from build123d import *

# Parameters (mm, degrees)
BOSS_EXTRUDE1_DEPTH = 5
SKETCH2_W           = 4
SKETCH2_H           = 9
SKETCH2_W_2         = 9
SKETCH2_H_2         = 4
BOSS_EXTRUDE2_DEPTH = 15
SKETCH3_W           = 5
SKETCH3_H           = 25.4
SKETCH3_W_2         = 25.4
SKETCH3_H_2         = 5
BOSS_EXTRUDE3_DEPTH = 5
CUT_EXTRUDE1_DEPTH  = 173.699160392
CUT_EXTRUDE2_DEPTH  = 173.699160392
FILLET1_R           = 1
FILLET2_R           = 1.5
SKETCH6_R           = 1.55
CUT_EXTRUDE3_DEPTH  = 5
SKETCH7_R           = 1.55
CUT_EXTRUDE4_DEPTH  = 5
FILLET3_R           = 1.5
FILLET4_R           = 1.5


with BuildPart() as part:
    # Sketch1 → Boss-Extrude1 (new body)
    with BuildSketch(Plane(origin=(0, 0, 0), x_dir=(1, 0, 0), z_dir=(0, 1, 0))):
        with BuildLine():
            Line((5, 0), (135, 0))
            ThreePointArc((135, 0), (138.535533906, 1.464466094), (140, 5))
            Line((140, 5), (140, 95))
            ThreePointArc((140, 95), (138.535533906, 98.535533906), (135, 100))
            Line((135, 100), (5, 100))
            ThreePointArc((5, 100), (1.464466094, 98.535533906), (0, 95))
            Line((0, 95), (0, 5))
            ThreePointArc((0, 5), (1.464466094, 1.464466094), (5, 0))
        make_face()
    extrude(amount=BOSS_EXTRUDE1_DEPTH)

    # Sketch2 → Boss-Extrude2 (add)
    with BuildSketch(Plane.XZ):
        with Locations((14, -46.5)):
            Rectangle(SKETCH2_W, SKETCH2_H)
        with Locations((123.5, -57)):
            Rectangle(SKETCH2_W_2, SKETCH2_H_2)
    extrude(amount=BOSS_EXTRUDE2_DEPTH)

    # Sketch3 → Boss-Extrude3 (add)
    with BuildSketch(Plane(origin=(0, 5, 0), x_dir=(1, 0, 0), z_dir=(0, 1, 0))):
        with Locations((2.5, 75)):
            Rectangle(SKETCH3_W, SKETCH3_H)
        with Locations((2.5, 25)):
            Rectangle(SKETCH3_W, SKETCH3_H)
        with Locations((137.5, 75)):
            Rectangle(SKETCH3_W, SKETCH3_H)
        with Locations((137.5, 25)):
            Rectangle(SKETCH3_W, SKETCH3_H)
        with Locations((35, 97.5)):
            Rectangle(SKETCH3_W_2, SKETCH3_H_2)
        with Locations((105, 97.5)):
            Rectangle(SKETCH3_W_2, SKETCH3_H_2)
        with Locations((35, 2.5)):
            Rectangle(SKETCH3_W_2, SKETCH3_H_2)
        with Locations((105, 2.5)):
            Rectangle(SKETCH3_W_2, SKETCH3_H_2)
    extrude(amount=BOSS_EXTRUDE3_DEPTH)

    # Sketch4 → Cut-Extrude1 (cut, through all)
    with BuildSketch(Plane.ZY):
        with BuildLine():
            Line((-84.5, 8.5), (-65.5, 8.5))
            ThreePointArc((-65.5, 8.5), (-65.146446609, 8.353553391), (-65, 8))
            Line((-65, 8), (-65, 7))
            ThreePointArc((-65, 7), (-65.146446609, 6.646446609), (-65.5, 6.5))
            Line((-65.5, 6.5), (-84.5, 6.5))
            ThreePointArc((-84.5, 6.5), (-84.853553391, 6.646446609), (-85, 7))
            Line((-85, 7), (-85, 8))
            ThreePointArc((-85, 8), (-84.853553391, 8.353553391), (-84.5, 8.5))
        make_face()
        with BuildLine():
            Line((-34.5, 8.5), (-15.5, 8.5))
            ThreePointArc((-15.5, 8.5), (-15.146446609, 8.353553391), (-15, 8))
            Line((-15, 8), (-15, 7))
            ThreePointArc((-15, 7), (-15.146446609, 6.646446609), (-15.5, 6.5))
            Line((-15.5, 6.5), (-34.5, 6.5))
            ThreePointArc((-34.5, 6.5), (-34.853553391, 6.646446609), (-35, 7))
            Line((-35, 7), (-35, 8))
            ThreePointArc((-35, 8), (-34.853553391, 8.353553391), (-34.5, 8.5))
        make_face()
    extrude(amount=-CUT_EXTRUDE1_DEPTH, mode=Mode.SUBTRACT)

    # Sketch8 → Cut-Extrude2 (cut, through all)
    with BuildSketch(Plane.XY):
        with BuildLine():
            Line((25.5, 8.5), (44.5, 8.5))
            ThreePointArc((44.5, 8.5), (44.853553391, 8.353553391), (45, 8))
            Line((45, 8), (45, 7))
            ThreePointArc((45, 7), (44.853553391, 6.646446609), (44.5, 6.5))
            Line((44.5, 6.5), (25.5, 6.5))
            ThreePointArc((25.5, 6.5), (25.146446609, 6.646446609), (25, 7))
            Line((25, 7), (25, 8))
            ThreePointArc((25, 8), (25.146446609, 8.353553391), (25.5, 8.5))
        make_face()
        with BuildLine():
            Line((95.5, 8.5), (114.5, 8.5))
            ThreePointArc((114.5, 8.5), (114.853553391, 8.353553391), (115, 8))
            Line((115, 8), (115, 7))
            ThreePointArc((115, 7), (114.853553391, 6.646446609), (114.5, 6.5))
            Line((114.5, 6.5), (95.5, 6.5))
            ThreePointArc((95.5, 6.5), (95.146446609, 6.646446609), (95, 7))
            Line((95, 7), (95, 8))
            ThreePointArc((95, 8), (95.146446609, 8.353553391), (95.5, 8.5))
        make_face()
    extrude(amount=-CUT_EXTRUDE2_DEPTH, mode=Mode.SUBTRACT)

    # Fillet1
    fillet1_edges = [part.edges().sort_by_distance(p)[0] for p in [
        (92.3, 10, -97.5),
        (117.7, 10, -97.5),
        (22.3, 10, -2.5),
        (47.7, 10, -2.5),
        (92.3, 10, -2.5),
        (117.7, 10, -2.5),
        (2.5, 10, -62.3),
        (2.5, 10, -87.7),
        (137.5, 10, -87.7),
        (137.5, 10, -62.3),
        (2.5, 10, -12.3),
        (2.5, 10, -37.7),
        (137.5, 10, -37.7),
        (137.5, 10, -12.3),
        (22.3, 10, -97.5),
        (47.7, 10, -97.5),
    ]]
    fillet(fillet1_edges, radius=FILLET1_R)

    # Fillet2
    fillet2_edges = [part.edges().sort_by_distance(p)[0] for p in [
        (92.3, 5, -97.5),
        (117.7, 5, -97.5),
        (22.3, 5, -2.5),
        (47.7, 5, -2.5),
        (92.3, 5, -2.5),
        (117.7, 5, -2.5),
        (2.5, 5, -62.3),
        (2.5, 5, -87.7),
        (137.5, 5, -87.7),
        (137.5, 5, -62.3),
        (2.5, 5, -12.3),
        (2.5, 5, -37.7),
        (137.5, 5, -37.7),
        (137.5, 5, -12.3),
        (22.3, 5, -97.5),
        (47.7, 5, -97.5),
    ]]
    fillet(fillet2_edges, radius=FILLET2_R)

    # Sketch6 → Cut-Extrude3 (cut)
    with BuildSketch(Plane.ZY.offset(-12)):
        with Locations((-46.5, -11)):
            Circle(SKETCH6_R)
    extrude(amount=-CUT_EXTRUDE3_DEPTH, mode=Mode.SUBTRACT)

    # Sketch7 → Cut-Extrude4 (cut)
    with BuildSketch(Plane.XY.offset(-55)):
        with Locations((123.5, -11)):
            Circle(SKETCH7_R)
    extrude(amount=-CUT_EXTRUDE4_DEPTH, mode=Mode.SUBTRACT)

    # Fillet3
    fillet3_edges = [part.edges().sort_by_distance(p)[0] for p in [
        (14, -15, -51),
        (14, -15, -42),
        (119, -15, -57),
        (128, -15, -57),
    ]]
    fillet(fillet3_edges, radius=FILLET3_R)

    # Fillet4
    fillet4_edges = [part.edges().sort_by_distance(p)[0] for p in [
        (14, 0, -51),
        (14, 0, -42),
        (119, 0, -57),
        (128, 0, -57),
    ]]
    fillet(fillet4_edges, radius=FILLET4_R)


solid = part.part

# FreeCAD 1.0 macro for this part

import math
import FreeCAD as App
import Part
import Sketcher
Q = App.Units.Quantity


def edges_at(feature, points):
    """Names of the edges that pass closest to the given points."""
    edges = feature.Shape.Edges
    near = lambda p: min(range(len(edges)), key=lambda i: edges[i].distToShape(Part.Vertex(*p))[0])
    return sorted({f"Edge{near(p) + 1}" for p in points})


def add_polygon(sketch, points):
    """Adds a closed chain of lines whose ends are joined by coincident constraints."""
    first, n = sketch.GeometryCount, len(points)
    for a, b in zip(points, points[1:] + points[:1]):
        sketch.addGeometry(Part.LineSegment(App.Vector(*a, 0), App.Vector(*b, 0)), False)
    for i in range(n):
        sketch.addConstraint(Sketcher.Constraint("Coincident", first + i, 2, first + (i + 1) % n, 1))

doc = App.newDocument("Part")
params = doc.addObject("Spreadsheet::Sheet", "Params")
for row, (alias, value) in enumerate([
    ("sketch1_radius", "5 mm"),
    ("sketch1_width", "130 mm"),
    ("sketch1_height", "90 mm"),
    ("pad1_length", "5 mm"),
    ("sketch2_width", "4 mm"),
    ("sketch2_width2", "9 mm"),
    ("pad2_length", "15 mm"),
    ("sketch3_width", "5 mm"),
    ("sketch3_width2", "25.4 mm"),
    ("pad3_length", "5 mm"),
    ("sketch4_radius", "0.5 mm"),
    ("sketch4_width", "1 mm"),
    ("sketch4_height", "19 mm"),
    ("sketch5_radius", "0.5 mm"),
    ("sketch5_width", "19 mm"),
    ("sketch5_height", "1 mm"),
    ("fillet_radius", "1 mm"),
    ("fillet2_radius", "1.5 mm"),
    ("sketch6_diameter", "3.1 mm"),
    ("pocket3_length", "5 mm"),
    ("sketch7_diameter", "3.1 mm"),
    ("pocket4_length", "5 mm"),
    ("fillet3_radius", "1.5 mm"),
    ("fillet4_radius", "1.5 mm"),
], start=1):
    params.set(f"A{row}", alias)
    params.set(f"B{row}", "=" + value)
    params.setAlias(f"B{row}", alias)

body = doc.addObject("PartDesign::Body", "Body")

# Sketch on XZ plane
sketch1 = body.newObject("Sketcher::SketchObject", "Sketch")
sketch1.AttachmentSupport = (doc.getObject("XZ_Plane"), [""])
sketch1.MapMode = "FlatFace"
sketch1.addGeometry([
    Part.LineSegment(App.Vector(5, 0, 0), App.Vector(135, 0, 0)),  # 0
    Part.ArcOfCircle(Part.Circle(App.Vector(135, -5, 0), App.Vector(0, 0, 1), 5), math.radians(0), math.radians(90)),  # 1
    Part.LineSegment(App.Vector(140, -5, 0), App.Vector(140, -95, 0)),  # 2
    Part.ArcOfCircle(Part.Circle(App.Vector(135, -95, 0), App.Vector(0, 0, 1), 5), math.radians(-90), math.radians(0)),  # 3
    Part.LineSegment(App.Vector(135, -100, 0), App.Vector(5, -100, 0)),  # 4
    Part.ArcOfCircle(Part.Circle(App.Vector(5, -95, 0), App.Vector(0, 0, 1), 5), math.radians(180), math.radians(270)),  # 5
    Part.LineSegment(App.Vector(0, -95, 0), App.Vector(0, -5, 0)),  # 6
    Part.ArcOfCircle(Part.Circle(App.Vector(5, -5, 0), App.Vector(0, 0, 1), 5), math.radians(90), math.radians(180)),  # 7
], False)
sketch1.addConstraint([
    Sketcher.Constraint("Tangent", 0, 2, 1, 2),
    Sketcher.Constraint("Tangent", 1, 1, 2, 1),
    Sketcher.Constraint("Tangent", 2, 2, 3, 2),
    Sketcher.Constraint("Tangent", 3, 1, 4, 1),
    Sketcher.Constraint("Tangent", 4, 2, 5, 2),
    Sketcher.Constraint("Tangent", 5, 1, 6, 1),
    Sketcher.Constraint("Tangent", 6, 2, 7, 2),
    Sketcher.Constraint("Tangent", 7, 1, 0, 1),
    Sketcher.Constraint("Horizontal", 0),
    Sketcher.Constraint("Vertical", 2),
    Sketcher.Constraint("Horizontal", 4),
    Sketcher.Constraint("Vertical", 6),
    Sketcher.Constraint("Equal", 1, 3),
    Sketcher.Constraint("Equal", 3, 5),
    Sketcher.Constraint("Equal", 5, 7),
    Sketcher.Constraint("PointOnObject", 0, 2, -1),
    Sketcher.Constraint("PointOnObject", 5, 1, -2),
    Sketcher.Constraint("Radius", 1, Q("5 mm")),
    Sketcher.Constraint("DistanceX", 0, 1, 0, 2, Q("130 mm")),
    Sketcher.Constraint("DistanceY", 2, 2, 2, 1, Q("90 mm")),
])
sketch1.setExpression("Constraints[17]", "Params.sketch1_radius")
sketch1.setExpression("Constraints[18]", "Params.sketch1_width")
sketch1.setExpression("Constraints[19]", "Params.sketch1_height")
pad1 = body.newObject("PartDesign::Pad", "Pad")
pad1.Profile = sketch1
pad1.setExpression("Length", "Params.pad1_length")
pad1.Reversed = True

# Sketch on XZ plane
sketch2 = body.newObject("Sketcher::SketchObject", "Sketch001")
sketch2.AttachmentSupport = (doc.getObject("XZ_Plane"), [""])
sketch2.MapMode = "FlatFace"
add_polygon(sketch2, [(12, -42), (12, -51), (16, -51), (16, -42)])  # lines 0-3
add_polygon(sketch2, [(119, -55), (119, -59), (128, -59), (128, -55)])  # lines 4-7
sketch2.addConstraint([
    Sketcher.Constraint("Vertical", 0),
    Sketcher.Constraint("Horizontal", 1),
    Sketcher.Constraint("Vertical", 2),
    Sketcher.Constraint("Horizontal", 3),
    Sketcher.Constraint("Vertical", 4),
    Sketcher.Constraint("Horizontal", 5),
    Sketcher.Constraint("Vertical", 6),
    Sketcher.Constraint("Horizontal", 7),
    Sketcher.Constraint("Equal", 7, 0),
    Sketcher.Constraint("Equal", 3, 4),
    Sketcher.Constraint("DistanceX", 1, 1, 1, 2, Q("4 mm")),
    Sketcher.Constraint("DistanceX", 5, 1, 5, 2, Q("9 mm")),
    Sketcher.Constraint("DistanceX", -1, 1, 0, 2, Q("12 mm")),
    Sketcher.Constraint("DistanceY", 0, 2, -1, 1, Q("51 mm")),
    Sketcher.Constraint("DistanceX", -1, 1, 4, 2, Q("119 mm")),
    Sketcher.Constraint("DistanceY", 4, 2, -1, 1, Q("59 mm")),
])
sketch2.setExpression("Constraints[18]", "Params.sketch2_width")
sketch2.setExpression("Constraints[19]", "Params.sketch2_width2")
pad2 = body.newObject("PartDesign::Pad", "Pad001")
pad2.Profile = sketch2
pad2.setExpression("Length", "Params.pad2_length")

# Sketch on XZ plane
sketch3 = body.newObject("Sketcher::SketchObject", "Sketch002")
sketch3.AttachmentSupport = (doc.getObject("XZ_Plane"), [""])
sketch3.MapMode = "FlatFace"
sketch3.AttachmentOffset = App.Placement(App.Vector(0, 0, -5), App.Rotation())
add_polygon(sketch3, [(0, -87.7), (0, -62.3), (5, -62.3), (5, -87.7)])  # lines 0-3
add_polygon(sketch3, [(0, -37.7), (0, -12.3), (5, -12.3), (5, -37.7)])  # lines 4-7
add_polygon(sketch3, [(135, -87.7), (135, -62.3), (140, -62.3), (140, -87.7)])  # lines 8-11
add_polygon(sketch3, [(135, -37.7), (135, -12.3), (140, -12.3), (140, -37.7)])  # lines 12-15
add_polygon(sketch3, [(22.3, -100), (22.3, -95), (47.7, -95), (47.7, -100)])  # lines 16-19
add_polygon(sketch3, [(92.3, -100), (92.3, -95), (117.7, -95), (117.7, -100)])  # lines 20-23
add_polygon(sketch3, [(22.3, -5), (22.3, 0), (47.7, 0), (47.7, -5)])  # lines 24-27
add_polygon(sketch3, [(92.3, -5), (92.3, 0), (117.7, 0), (117.7, -5)])  # lines 28-31
sketch3.addConstraint([
    Sketcher.Constraint("Vertical", 0),
    Sketcher.Constraint("Horizontal", 1),
    Sketcher.Constraint("Vertical", 2),
    Sketcher.Constraint("Horizontal", 3),
    Sketcher.Constraint("Vertical", 4),
    Sketcher.Constraint("Horizontal", 5),
    Sketcher.Constraint("Vertical", 6),
    Sketcher.Constraint("Horizontal", 7),
    Sketcher.Constraint("Vertical", 8),
    Sketcher.Constraint("Horizontal", 9),
    Sketcher.Constraint("Vertical", 10),
    Sketcher.Constraint("Horizontal", 11),
    Sketcher.Constraint("Vertical", 12),
    Sketcher.Constraint("Horizontal", 13),
    Sketcher.Constraint("Vertical", 14),
    Sketcher.Constraint("Horizontal", 15),
    Sketcher.Constraint("Vertical", 16),
    Sketcher.Constraint("Horizontal", 17),
    Sketcher.Constraint("Vertical", 18),
    Sketcher.Constraint("Horizontal", 19),
    Sketcher.Constraint("Vertical", 20),
    Sketcher.Constraint("Horizontal", 21),
    Sketcher.Constraint("Vertical", 22),
    Sketcher.Constraint("Horizontal", 23),
    Sketcher.Constraint("Vertical", 24),
    Sketcher.Constraint("Horizontal", 25),
    Sketcher.Constraint("Vertical", 26),
    Sketcher.Constraint("Horizontal", 27),
    Sketcher.Constraint("Vertical", 28),
    Sketcher.Constraint("Horizontal", 29),
    Sketcher.Constraint("Vertical", 30),
    Sketcher.Constraint("Horizontal", 31),
    Sketcher.Constraint("PointOnObject", 0, 2, -2),
    Sketcher.Constraint("PointOnObject", 4, 2, -2),
    Sketcher.Constraint("PointOnObject", 24, 2, -1),
    Sketcher.Constraint("PointOnObject", 28, 2, -1),
    Sketcher.Constraint("Horizontal", 1, 2, 8, 2),
    Sketcher.Constraint("Horizontal", 3, 2, 10, 2),
    Sketcher.Constraint("Horizontal", 5, 2, 12, 2),
    Sketcher.Constraint("Horizontal", 7, 2, 14, 2),
    Sketcher.Constraint("Horizontal", 17, 2, 20, 2),
    Sketcher.Constraint("Horizontal", 19, 2, 22, 2),
    Sketcher.Constraint("Horizontal", 27, 2, 30, 2),
    Sketcher.Constraint("Vertical", 2, 2, 5, 2),
    Sketcher.Constraint("Vertical", 11, 2, 12, 2),
    Sketcher.Constraint("Vertical", 10, 2, 13, 2),
    Sketcher.Constraint("Vertical", 19, 2, 24, 2),
    Sketcher.Constraint("Vertical", 18, 2, 25, 2),
    Sketcher.Constraint("Vertical", 23, 2, 28, 2),
    Sketcher.Constraint("Vertical", 22, 2, 29, 2),
    Sketcher.Constraint("Equal", 7, 9),
    Sketcher.Constraint("Equal", 19, 21),
    Sketcher.Constraint("Equal", 31, 0),
    Sketcher.Constraint("Equal", 2, 4),
    Sketcher.Constraint("Equal", 15, 16),
    Sketcher.Constraint("Equal", 22, 24),
    Sketcher.Constraint("DistanceX", 1, 1, 1, 2, Q("5 mm")),
    Sketcher.Constraint("DistanceX", 17, 1, 17, 2, Q("25.4 mm")),
    Sketcher.Constraint("DistanceX", -1, 1, 8, 2, Q("135 mm")),
    Sketcher.Constraint("DistanceY", 16, 2, -1, 1, Q("95 mm")),
    Sketcher.Constraint("DistanceY", 0, 2, 4, 2, Q("50 mm")),
    Sketcher.Constraint("DistanceY", 0, 2, -1, 1, Q("62.3 mm")),
    Sketcher.Constraint("DistanceX", -1, 1, 16, 2, Q("22.3 mm")),
    Sketcher.Constraint("DistanceX", -1, 1, 20, 2, Q("92.3 mm")),
])
sketch3.setExpression("Constraints[88]", "Params.sketch3_width")
sketch3.setExpression("Constraints[89]", "Params.sketch3_width2")
pad3 = body.newObject("PartDesign::Pad", "Pad002")
pad3.Profile = sketch3
pad3.setExpression("Length", "Params.pad3_length")
pad3.Reversed = True

# Sketch on YZ plane
sketch4 = body.newObject("Sketcher::SketchObject", "Sketch003")
sketch4.AttachmentSupport = (doc.getObject("YZ_Plane"), [""])
sketch4.MapMode = "FlatFace"
sketch4.addGeometry([
    Part.LineSegment(App.Vector(8.5, -65.5, 0), App.Vector(8.5, -84.5, 0)),  # 0
    Part.ArcOfCircle(Part.Circle(App.Vector(8, -84.5, 0), App.Vector(0, 0, 1), 0.5), math.radians(-90), math.radians(0)),  # 1
    Part.LineSegment(App.Vector(8, -85, 0), App.Vector(7, -85, 0)),  # 2
    Part.ArcOfCircle(Part.Circle(App.Vector(7, -84.5, 0), App.Vector(0, 0, 1), 0.5), math.radians(180), math.radians(270)),  # 3
    Part.LineSegment(App.Vector(6.5, -84.5, 0), App.Vector(6.5, -65.5, 0)),  # 4
    Part.ArcOfCircle(Part.Circle(App.Vector(7, -65.5, 0), App.Vector(0, 0, 1), 0.5), math.radians(90), math.radians(180)),  # 5
    Part.LineSegment(App.Vector(7, -65, 0), App.Vector(8, -65, 0)),  # 6
    Part.ArcOfCircle(Part.Circle(App.Vector(8, -65.5, 0), App.Vector(0, 0, 1), 0.5), math.radians(0), math.radians(90)),  # 7
    Part.LineSegment(App.Vector(8.5, -15.5, 0), App.Vector(8.5, -34.5, 0)),  # 8
    Part.ArcOfCircle(Part.Circle(App.Vector(8, -34.5, 0), App.Vector(0, 0, 1), 0.5), math.radians(-90), math.radians(0)),  # 9
    Part.LineSegment(App.Vector(8, -35, 0), App.Vector(7, -35, 0)),  # 10
    Part.ArcOfCircle(Part.Circle(App.Vector(7, -34.5, 0), App.Vector(0, 0, 1), 0.5), math.radians(180), math.radians(270)),  # 11
    Part.LineSegment(App.Vector(6.5, -34.5, 0), App.Vector(6.5, -15.5, 0)),  # 12
    Part.ArcOfCircle(Part.Circle(App.Vector(7, -15.5, 0), App.Vector(0, 0, 1), 0.5), math.radians(90), math.radians(180)),  # 13
    Part.LineSegment(App.Vector(7, -15, 0), App.Vector(8, -15, 0)),  # 14
    Part.ArcOfCircle(Part.Circle(App.Vector(8, -15.5, 0), App.Vector(0, 0, 1), 0.5), math.radians(0), math.radians(90)),  # 15
], False)
sketch4.addConstraint([
    Sketcher.Constraint("Tangent", 0, 2, 1, 2),
    Sketcher.Constraint("Tangent", 1, 1, 2, 1),
    Sketcher.Constraint("Tangent", 2, 2, 3, 2),
    Sketcher.Constraint("Tangent", 3, 1, 4, 1),
    Sketcher.Constraint("Tangent", 4, 2, 5, 2),
    Sketcher.Constraint("Tangent", 5, 1, 6, 1),
    Sketcher.Constraint("Tangent", 6, 2, 7, 2),
    Sketcher.Constraint("Tangent", 7, 1, 0, 1),
    Sketcher.Constraint("Tangent", 8, 2, 9, 2),
    Sketcher.Constraint("Tangent", 9, 1, 10, 1),
    Sketcher.Constraint("Tangent", 10, 2, 11, 2),
    Sketcher.Constraint("Tangent", 11, 1, 12, 1),
    Sketcher.Constraint("Tangent", 12, 2, 13, 2),
    Sketcher.Constraint("Tangent", 13, 1, 14, 1),
    Sketcher.Constraint("Tangent", 14, 2, 15, 2),
    Sketcher.Constraint("Tangent", 15, 1, 8, 1),
    Sketcher.Constraint("Vertical", 0),
    Sketcher.Constraint("Horizontal", 2),
    Sketcher.Constraint("Vertical", 4),
    Sketcher.Constraint("Horizontal", 6),
    Sketcher.Constraint("Vertical", 8),
    Sketcher.Constraint("Horizontal", 10),
    Sketcher.Constraint("Vertical", 12),
    Sketcher.Constraint("Horizontal", 14),
    Sketcher.Constraint("Equal", 1, 3),
    Sketcher.Constraint("Equal", 3, 5),
    Sketcher.Constraint("Equal", 5, 7),
    Sketcher.Constraint("Equal", 7, 9),
    Sketcher.Constraint("Equal", 9, 11),
    Sketcher.Constraint("Equal", 11, 13),
    Sketcher.Constraint("Equal", 13, 15),
    Sketcher.Constraint("Vertical", 7, 3, 9, 3),
    Sketcher.Constraint("Vertical", 5, 3, 11, 3),
    Sketcher.Constraint("Equal", 4, 8),
    Sketcher.Constraint("Radius", 1, Q("0.5 mm")),
    Sketcher.Constraint("DistanceX", 2, 2, 2, 1, Q("1 mm")),
    Sketcher.Constraint("DistanceY", 0, 2, 0, 1, Q("19 mm")),
    Sketcher.Constraint("DistanceX", -1, 1, 1, 3, Q("8 mm")),
    Sketcher.Constraint("DistanceY", 1, 1, -1, 1, Q("85 mm")),
    Sketcher.Constraint("DistanceY", 9, 1, -1, 1, Q("35 mm")),
])
sketch4.setExpression("Constraints[34]", "Params.sketch4_radius")
sketch4.setExpression("Constraints[35]", "Params.sketch4_width")
sketch4.setExpression("Constraints[36]", "Params.sketch4_height")
pocket1 = body.newObject("PartDesign::Pocket", "Pocket")
pocket1.Profile = sketch4
pocket1.Type = "ThroughAll"
pocket1.Reversed = True

# Sketch on XY plane
sketch5 = body.newObject("Sketcher::SketchObject", "Sketch004")
sketch5.AttachmentSupport = (doc.getObject("XY_Plane"), [""])
sketch5.MapMode = "FlatFace"
sketch5.addGeometry([
    Part.LineSegment(App.Vector(44.5, 8.5, 0), App.Vector(25.5, 8.5, 0)),  # 0
    Part.ArcOfCircle(Part.Circle(App.Vector(25.5, 8, 0), App.Vector(0, 0, 1), 0.5), math.radians(90), math.radians(180)),  # 1
    Part.LineSegment(App.Vector(25, 8, 0), App.Vector(25, 7, 0)),  # 2
    Part.ArcOfCircle(Part.Circle(App.Vector(25.5, 7, 0), App.Vector(0, 0, 1), 0.5), math.radians(180), math.radians(270)),  # 3
    Part.LineSegment(App.Vector(25.5, 6.5, 0), App.Vector(44.5, 6.5, 0)),  # 4
    Part.ArcOfCircle(Part.Circle(App.Vector(44.5, 7, 0), App.Vector(0, 0, 1), 0.5), math.radians(-90), math.radians(0)),  # 5
    Part.LineSegment(App.Vector(45, 7, 0), App.Vector(45, 8, 0)),  # 6
    Part.ArcOfCircle(Part.Circle(App.Vector(44.5, 8, 0), App.Vector(0, 0, 1), 0.5), math.radians(0), math.radians(90)),  # 7
    Part.LineSegment(App.Vector(114.5, 8.5, 0), App.Vector(95.5, 8.5, 0)),  # 8
    Part.ArcOfCircle(Part.Circle(App.Vector(95.5, 8, 0), App.Vector(0, 0, 1), 0.5), math.radians(90), math.radians(180)),  # 9
    Part.LineSegment(App.Vector(95, 8, 0), App.Vector(95, 7, 0)),  # 10
    Part.ArcOfCircle(Part.Circle(App.Vector(95.5, 7, 0), App.Vector(0, 0, 1), 0.5), math.radians(180), math.radians(270)),  # 11
    Part.LineSegment(App.Vector(95.5, 6.5, 0), App.Vector(114.5, 6.5, 0)),  # 12
    Part.ArcOfCircle(Part.Circle(App.Vector(114.5, 7, 0), App.Vector(0, 0, 1), 0.5), math.radians(-90), math.radians(0)),  # 13
    Part.LineSegment(App.Vector(115, 7, 0), App.Vector(115, 8, 0)),  # 14
    Part.ArcOfCircle(Part.Circle(App.Vector(114.5, 8, 0), App.Vector(0, 0, 1), 0.5), math.radians(0), math.radians(90)),  # 15
], False)
sketch5.addConstraint([
    Sketcher.Constraint("Tangent", 0, 2, 1, 1),
    Sketcher.Constraint("Tangent", 1, 2, 2, 1),
    Sketcher.Constraint("Tangent", 2, 2, 3, 1),
    Sketcher.Constraint("Tangent", 3, 2, 4, 1),
    Sketcher.Constraint("Tangent", 4, 2, 5, 1),
    Sketcher.Constraint("Tangent", 5, 2, 6, 1),
    Sketcher.Constraint("Tangent", 6, 2, 7, 1),
    Sketcher.Constraint("Tangent", 7, 2, 0, 1),
    Sketcher.Constraint("Tangent", 8, 2, 9, 1),
    Sketcher.Constraint("Tangent", 9, 2, 10, 1),
    Sketcher.Constraint("Tangent", 10, 2, 11, 1),
    Sketcher.Constraint("Tangent", 11, 2, 12, 1),
    Sketcher.Constraint("Tangent", 12, 2, 13, 1),
    Sketcher.Constraint("Tangent", 13, 2, 14, 1),
    Sketcher.Constraint("Tangent", 14, 2, 15, 1),
    Sketcher.Constraint("Tangent", 15, 2, 8, 1),
    Sketcher.Constraint("Horizontal", 0),
    Sketcher.Constraint("Vertical", 2),
    Sketcher.Constraint("Horizontal", 4),
    Sketcher.Constraint("Vertical", 6),
    Sketcher.Constraint("Horizontal", 8),
    Sketcher.Constraint("Vertical", 10),
    Sketcher.Constraint("Horizontal", 12),
    Sketcher.Constraint("Vertical", 14),
    Sketcher.Constraint("Equal", 1, 3),
    Sketcher.Constraint("Equal", 3, 5),
    Sketcher.Constraint("Equal", 5, 7),
    Sketcher.Constraint("Equal", 7, 9),
    Sketcher.Constraint("Equal", 9, 11),
    Sketcher.Constraint("Equal", 11, 13),
    Sketcher.Constraint("Equal", 13, 15),
    Sketcher.Constraint("Horizontal", 7, 3, 9, 3),
    Sketcher.Constraint("Horizontal", 5, 3, 11, 3),
    Sketcher.Constraint("Equal", 4, 8),
    Sketcher.Constraint("Radius", 1, Q("0.5 mm")),
    Sketcher.Constraint("DistanceX", 0, 2, 0, 1, Q("19 mm")),
    Sketcher.Constraint("DistanceY", 2, 2, 2, 1, Q("1 mm")),
    Sketcher.Constraint("DistanceY", -1, 1, 1, 3, Q("8 mm")),
    Sketcher.Constraint("DistanceX", -1, 1, 1, 2, Q("25 mm")),
    Sketcher.Constraint("DistanceX", -1, 1, 9, 2, Q("95 mm")),
])
sketch5.setExpression("Constraints[34]", "Params.sketch5_radius")
sketch5.setExpression("Constraints[35]", "Params.sketch5_width")
sketch5.setExpression("Constraints[36]", "Params.sketch5_height")
pocket2 = body.newObject("PartDesign::Pocket", "Pocket001")
pocket2.Profile = sketch5
pocket2.Type = "ThroughAll"
doc.recompute()

fillet = body.newObject("PartDesign::Fillet", "Fillet")
fillet.Base = (pocket2, edges_at(pocket2, [
    (92.3, 10, -97.5),
    (117.7, 10, -97.5),
    (22.3, 10, -2.5),
    (47.7, 10, -2.5),
    (92.3, 10, -2.5),
    (117.7, 10, -2.5),
    (2.5, 10, -62.3),
    (2.5, 10, -87.7),
    (137.5, 10, -87.7),
    (137.5, 10, -62.3),
    (2.5, 10, -12.3),
    (2.5, 10, -37.7),
    (137.5, 10, -37.7),
    (137.5, 10, -12.3),
    (22.3, 10, -97.5),
    (47.7, 10, -97.5),
]))
fillet.setExpression("Radius", "Params.fillet_radius")
doc.recompute()

fillet2 = body.newObject("PartDesign::Fillet", "Fillet001")
fillet2.Base = (fillet, edges_at(fillet, [
    (92.3, 5, -97.5),
    (117.7, 5, -97.5),
    (22.3, 5, -2.5),
    (47.7, 5, -2.5),
    (92.3, 5, -2.5),
    (117.7, 5, -2.5),
    (2.5, 5, -62.3),
    (2.5, 5, -87.7),
    (137.5, 5, -87.7),
    (137.5, 5, -62.3),
    (2.5, 5, -12.3),
    (2.5, 5, -37.7),
    (137.5, 5, -37.7),
    (137.5, 5, -12.3),
    (22.3, 5, -97.5),
    (47.7, 5, -97.5),
]))
fillet2.setExpression("Radius", "Params.fillet2_radius")

# Sketch on YZ plane
sketch6 = body.newObject("Sketcher::SketchObject", "Sketch005")
sketch6.AttachmentSupport = (doc.getObject("YZ_Plane"), [""])
sketch6.MapMode = "FlatFace"
sketch6.AttachmentOffset = App.Placement(App.Vector(0, 0, 12), App.Rotation())
sketch6.addGeometry(Part.Circle(App.Vector(-11, -46.5, 0), App.Vector(0, 0, 1), 1.55), False)
sketch6.addConstraint([
    Sketcher.Constraint("Diameter", 0, Q("3.1 mm")),
    Sketcher.Constraint("DistanceX", 0, 3, -1, 1, Q("11 mm")),
    Sketcher.Constraint("DistanceY", 0, 3, -1, 1, Q("46.5 mm")),
])
sketch6.setExpression("Constraints[0]", "Params.sketch6_diameter")
pocket3 = body.newObject("PartDesign::Pocket", "Pocket002")
pocket3.Profile = sketch6
pocket3.setExpression("Length", "Params.pocket3_length")
pocket3.Reversed = True

# Sketch on XY plane
sketch7 = body.newObject("Sketcher::SketchObject", "Sketch006")
sketch7.AttachmentSupport = (doc.getObject("XY_Plane"), [""])
sketch7.MapMode = "FlatFace"
sketch7.AttachmentOffset = App.Placement(App.Vector(0, 0, -55), App.Rotation())
sketch7.addGeometry(Part.Circle(App.Vector(123.5, -11, 0), App.Vector(0, 0, 1), 1.55), False)
sketch7.addConstraint([
    Sketcher.Constraint("Diameter", 0, Q("3.1 mm")),
    Sketcher.Constraint("DistanceY", 0, 3, -1, 1, Q("11 mm")),
    Sketcher.Constraint("DistanceX", -1, 1, 0, 3, Q("123.5 mm")),
])
sketch7.setExpression("Constraints[0]", "Params.sketch7_diameter")
pocket4 = body.newObject("PartDesign::Pocket", "Pocket003")
pocket4.Profile = sketch7
pocket4.setExpression("Length", "Params.pocket4_length")
doc.recompute()

fillet3 = body.newObject("PartDesign::Fillet", "Fillet002")
fillet3.Base = (pocket4, edges_at(pocket4, [
    (14, -15, -51),
    (14, -15, -42),
    (119, -15, -57),
    (128, -15, -57),
]))
fillet3.setExpression("Radius", "Params.fillet3_radius")
doc.recompute()

fillet4 = body.newObject("PartDesign::Fillet", "Fillet003")
fillet4.Base = (fillet3, edges_at(fillet3, [
    (14, 0, -51),
    (14, 0, -42),
    (119, 0, -57),
    (128, 0, -57),
]))
fillet4.setExpression("Radius", "Params.fillet4_radius")

doc.recompute()
